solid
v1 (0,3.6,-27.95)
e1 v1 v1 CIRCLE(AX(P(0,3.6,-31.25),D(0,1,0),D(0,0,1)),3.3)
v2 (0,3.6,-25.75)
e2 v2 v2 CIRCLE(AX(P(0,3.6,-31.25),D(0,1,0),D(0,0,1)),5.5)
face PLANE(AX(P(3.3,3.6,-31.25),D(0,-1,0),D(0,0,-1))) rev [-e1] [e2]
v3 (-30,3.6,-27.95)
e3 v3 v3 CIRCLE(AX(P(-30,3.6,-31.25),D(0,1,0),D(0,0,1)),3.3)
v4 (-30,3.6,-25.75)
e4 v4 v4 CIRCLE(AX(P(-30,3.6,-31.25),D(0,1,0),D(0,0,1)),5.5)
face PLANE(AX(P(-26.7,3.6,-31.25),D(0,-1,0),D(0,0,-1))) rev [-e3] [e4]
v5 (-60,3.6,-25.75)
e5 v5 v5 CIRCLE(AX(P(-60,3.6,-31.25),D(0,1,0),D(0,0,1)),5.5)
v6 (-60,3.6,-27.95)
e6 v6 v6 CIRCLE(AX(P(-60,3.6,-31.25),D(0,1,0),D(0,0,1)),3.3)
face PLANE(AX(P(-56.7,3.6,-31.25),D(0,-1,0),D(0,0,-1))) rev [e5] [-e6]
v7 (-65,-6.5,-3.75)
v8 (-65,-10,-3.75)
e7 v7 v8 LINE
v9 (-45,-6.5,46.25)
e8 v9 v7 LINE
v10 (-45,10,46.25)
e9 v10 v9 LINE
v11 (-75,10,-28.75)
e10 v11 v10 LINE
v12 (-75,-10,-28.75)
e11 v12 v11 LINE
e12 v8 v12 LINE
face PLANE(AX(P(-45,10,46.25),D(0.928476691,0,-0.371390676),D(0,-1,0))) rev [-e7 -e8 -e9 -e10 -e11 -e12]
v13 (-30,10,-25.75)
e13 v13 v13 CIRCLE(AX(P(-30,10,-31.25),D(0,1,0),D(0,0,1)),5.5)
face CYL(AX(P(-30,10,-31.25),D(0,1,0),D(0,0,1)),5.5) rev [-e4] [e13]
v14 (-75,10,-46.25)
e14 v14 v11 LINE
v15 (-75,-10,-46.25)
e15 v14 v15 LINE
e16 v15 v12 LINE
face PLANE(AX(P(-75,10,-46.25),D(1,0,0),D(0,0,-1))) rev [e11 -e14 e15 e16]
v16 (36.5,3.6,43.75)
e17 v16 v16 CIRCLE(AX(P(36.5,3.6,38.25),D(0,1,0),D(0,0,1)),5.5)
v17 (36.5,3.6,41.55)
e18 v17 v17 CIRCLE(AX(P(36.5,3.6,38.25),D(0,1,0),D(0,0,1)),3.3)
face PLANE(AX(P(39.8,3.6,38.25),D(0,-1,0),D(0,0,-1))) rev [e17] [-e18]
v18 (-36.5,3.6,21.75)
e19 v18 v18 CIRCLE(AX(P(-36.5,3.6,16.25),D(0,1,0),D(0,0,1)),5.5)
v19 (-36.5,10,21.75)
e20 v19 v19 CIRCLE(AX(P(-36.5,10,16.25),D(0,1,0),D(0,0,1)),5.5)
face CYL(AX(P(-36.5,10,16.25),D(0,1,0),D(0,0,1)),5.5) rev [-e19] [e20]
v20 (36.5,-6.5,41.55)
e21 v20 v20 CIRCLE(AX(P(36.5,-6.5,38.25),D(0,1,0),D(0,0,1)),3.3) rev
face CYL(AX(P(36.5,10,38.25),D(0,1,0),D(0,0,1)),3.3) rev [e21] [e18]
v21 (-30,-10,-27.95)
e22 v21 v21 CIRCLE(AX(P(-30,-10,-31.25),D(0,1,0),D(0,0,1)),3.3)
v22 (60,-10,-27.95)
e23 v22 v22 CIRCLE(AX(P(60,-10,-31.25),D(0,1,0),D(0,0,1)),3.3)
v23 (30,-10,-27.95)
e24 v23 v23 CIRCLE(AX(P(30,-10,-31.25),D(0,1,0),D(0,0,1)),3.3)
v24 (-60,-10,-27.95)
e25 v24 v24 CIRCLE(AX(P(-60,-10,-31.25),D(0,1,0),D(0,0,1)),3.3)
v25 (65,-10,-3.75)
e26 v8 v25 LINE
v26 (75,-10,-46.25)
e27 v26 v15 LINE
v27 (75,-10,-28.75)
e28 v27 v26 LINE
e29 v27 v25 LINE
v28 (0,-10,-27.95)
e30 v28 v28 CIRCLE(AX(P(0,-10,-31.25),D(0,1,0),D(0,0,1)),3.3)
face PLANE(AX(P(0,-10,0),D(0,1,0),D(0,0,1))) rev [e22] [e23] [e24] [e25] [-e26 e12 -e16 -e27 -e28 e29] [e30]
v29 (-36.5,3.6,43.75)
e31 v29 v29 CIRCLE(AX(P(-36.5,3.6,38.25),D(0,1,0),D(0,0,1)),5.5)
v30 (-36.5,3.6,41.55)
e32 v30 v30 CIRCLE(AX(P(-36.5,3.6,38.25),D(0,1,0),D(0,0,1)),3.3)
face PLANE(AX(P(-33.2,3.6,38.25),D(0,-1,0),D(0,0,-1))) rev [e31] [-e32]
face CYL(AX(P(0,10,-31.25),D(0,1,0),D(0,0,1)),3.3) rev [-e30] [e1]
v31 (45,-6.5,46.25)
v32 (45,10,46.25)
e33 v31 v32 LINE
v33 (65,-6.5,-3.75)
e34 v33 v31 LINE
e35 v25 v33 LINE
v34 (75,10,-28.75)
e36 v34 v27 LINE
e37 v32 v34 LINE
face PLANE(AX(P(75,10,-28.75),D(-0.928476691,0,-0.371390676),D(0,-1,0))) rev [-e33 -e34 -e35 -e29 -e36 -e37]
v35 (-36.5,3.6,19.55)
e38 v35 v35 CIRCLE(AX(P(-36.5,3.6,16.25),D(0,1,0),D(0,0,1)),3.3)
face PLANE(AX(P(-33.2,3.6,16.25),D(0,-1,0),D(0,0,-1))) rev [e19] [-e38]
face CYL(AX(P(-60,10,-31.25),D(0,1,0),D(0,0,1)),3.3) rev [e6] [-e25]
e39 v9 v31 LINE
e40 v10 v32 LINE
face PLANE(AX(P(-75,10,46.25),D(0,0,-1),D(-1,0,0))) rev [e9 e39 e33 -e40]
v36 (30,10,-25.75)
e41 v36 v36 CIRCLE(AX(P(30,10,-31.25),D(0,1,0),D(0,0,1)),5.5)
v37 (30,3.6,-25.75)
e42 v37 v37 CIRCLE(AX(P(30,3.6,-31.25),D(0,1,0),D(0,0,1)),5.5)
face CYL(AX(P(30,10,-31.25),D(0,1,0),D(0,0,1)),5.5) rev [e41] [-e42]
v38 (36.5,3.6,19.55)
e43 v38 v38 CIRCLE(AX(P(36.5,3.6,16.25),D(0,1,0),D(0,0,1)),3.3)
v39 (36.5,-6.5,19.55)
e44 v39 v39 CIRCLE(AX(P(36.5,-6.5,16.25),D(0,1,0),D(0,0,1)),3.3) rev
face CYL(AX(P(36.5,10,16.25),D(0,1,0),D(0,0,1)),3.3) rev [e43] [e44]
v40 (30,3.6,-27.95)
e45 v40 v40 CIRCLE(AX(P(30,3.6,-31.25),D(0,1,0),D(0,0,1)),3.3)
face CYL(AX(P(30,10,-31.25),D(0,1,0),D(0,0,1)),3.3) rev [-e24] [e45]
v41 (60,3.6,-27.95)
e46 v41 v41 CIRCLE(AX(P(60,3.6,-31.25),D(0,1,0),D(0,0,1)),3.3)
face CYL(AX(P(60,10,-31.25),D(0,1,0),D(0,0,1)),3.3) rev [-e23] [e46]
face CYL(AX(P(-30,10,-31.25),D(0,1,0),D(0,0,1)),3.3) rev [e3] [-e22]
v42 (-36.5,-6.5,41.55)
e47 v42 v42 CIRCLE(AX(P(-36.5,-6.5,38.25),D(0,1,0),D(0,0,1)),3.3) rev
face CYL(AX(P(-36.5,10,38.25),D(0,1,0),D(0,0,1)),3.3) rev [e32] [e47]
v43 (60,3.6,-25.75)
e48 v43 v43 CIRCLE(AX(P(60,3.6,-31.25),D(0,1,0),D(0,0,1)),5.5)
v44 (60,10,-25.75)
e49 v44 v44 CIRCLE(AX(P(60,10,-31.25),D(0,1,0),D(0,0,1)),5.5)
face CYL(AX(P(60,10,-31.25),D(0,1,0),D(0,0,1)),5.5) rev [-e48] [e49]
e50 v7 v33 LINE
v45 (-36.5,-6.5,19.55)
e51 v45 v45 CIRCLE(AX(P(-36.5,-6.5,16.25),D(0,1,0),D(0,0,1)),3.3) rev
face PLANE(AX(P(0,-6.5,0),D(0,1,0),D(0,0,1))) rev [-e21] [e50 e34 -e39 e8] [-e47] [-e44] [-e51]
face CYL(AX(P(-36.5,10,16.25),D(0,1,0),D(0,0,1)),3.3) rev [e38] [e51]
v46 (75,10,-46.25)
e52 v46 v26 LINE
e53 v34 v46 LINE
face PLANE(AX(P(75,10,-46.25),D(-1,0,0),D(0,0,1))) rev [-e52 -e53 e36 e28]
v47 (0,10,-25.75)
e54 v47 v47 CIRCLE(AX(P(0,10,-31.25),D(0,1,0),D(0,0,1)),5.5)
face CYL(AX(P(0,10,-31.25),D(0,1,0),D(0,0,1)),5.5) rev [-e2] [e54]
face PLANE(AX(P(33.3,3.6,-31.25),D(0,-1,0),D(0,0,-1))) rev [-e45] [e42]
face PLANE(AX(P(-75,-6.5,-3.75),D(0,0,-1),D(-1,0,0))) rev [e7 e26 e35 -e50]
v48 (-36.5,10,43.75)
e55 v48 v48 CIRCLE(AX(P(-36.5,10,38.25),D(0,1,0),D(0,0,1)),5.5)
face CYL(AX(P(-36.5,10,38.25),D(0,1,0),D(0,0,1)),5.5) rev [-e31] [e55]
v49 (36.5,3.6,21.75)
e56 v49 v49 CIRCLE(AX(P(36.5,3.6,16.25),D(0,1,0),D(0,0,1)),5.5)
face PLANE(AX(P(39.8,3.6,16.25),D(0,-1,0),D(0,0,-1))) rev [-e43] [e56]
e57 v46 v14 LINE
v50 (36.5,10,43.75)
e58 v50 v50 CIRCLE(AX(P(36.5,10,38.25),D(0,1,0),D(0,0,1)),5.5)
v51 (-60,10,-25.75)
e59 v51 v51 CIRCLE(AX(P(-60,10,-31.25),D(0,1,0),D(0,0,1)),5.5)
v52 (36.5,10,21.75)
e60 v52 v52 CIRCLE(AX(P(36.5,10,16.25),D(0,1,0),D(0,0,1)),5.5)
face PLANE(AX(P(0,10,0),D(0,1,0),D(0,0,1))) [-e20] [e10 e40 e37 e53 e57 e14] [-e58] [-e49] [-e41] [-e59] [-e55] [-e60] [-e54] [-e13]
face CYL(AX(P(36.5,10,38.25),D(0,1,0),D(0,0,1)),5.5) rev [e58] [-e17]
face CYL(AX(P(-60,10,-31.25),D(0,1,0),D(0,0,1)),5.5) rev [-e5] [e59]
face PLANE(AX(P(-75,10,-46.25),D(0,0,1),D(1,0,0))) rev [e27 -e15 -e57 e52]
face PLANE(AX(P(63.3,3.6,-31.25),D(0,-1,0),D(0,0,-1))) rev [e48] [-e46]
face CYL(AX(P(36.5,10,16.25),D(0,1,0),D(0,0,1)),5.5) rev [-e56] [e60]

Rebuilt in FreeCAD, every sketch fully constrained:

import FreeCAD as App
import Part
import Sketcher
from FreeCAD import Vector
Q = App.Units.Quantity


def edges_at(feature, points):
    """Names of the edges that pass closest to the given points."""
    edges = feature.Shape.Edges
    near = lambda p: min(range(len(edges)), key=lambda i: edges[i].distToShape(Part.Vertex(*p))[0])
    return sorted({f"Edge{near(p) + 1}" for p in points})

doc = App.newDocument("Part")
params = doc.addObject("Spreadsheet::Sheet", "Params")
for row, (alias, value) in enumerate([
    ("sketch1_width", "150 mm"),
    ("sketch1_height", "92.5 mm"),
    ("pad1_length", "20 mm"),
    ("chamfer_size", "75 mm"),
    ("chamfer_size2", "30 mm"),
    ("chamfer2_size", "30 mm"),
    ("chamfer2_size2", "75 mm"),
    ("sketch2_diameter", "6.6 mm"),
    ("hole_diameter", "6.6 mm"),
    ("hole_cbore_diameter", "11 mm"),
    ("hole_cbore_depth", "6.4 mm"),
    ("sketch3_diameter", "6.6 mm"),
    ("hole2_diameter", "6.6 mm"),
    ("hole2_cbore_diameter", "11 mm"),
    ("hole2_cbore_depth", "6.4 mm"),
    ("sketch4_width", "150 mm"),
    ("sketch4_height", "60 mm"),
    ("pocket1_length", "3.5 mm"),
], start=1):
    params.set(f"A{row}", alias)
    params.set(f"B{row}", "=" + value)
    params.setAlias(f"B{row}", alias)

body = doc.addObject("PartDesign::Body", "Body")

sketch1 = body.newObject("Sketcher::SketchObject", "Sketch")
sketch1.AttachmentSupport = (doc.getObject("XZ_Plane"), [""])
sketch1.MapMode = "FlatFace"
sketch1.addGeometry(Part.LineSegment(Vector(-75, -46.25, 0), Vector(-75, 46.25, 0)), False)
sketch1.addGeometry(Part.LineSegment(Vector(-75, 46.25, 0), Vector(75, 46.25, 0)), False)
sketch1.addGeometry(Part.LineSegment(Vector(75, 46.25, 0), Vector(75, -46.25, 0)), False)
sketch1.addGeometry(Part.LineSegment(Vector(75, -46.25, 0), Vector(-75, -46.25, 0)), False)
sketch1.addConstraint(Sketcher.Constraint("Coincident", 0, 2, 1, 1))
sketch1.addConstraint(Sketcher.Constraint("Coincident", 1, 2, 2, 1))
sketch1.addConstraint(Sketcher.Constraint("Coincident", 2, 2, 3, 1))
sketch1.addConstraint(Sketcher.Constraint("Coincident", 3, 2, 0, 1))
sketch1.addConstraint(Sketcher.Constraint("Vertical", 0))
sketch1.addConstraint(Sketcher.Constraint("Horizontal", 1))
sketch1.addConstraint(Sketcher.Constraint("Vertical", 2))
sketch1.addConstraint(Sketcher.Constraint("Horizontal", 3))
sketch1.addConstraint(Sketcher.Constraint("Symmetric", 0, 2, 2, 2, -1, 1))
sketch1.addConstraint(Sketcher.Constraint("DistanceX", 1, 1, 1, 2, Q("150 mm")))
sketch1.addConstraint(Sketcher.Constraint("DistanceY", 0, 1, 0, 2, Q("92.5 mm")))
sketch1.setExpression("Constraints[9]", "Params.sketch1_width")
sketch1.setExpression("Constraints[10]", "Params.sketch1_height")
pad1 = body.newObject("PartDesign::Pad", "Pad")
pad1.Profile = sketch1
pad1.setExpression("Length", "Params.pad1_length")
pad1.Midplane = True
doc.recompute()

chamfer = body.newObject("PartDesign::Chamfer", "Chamfer")
chamfer.Base = (pad1, edges_at(pad1, [(-75, 0, 46.25)]))
chamfer.ChamferType = "Two distances"
chamfer.setExpression("Size", "Params.chamfer_size")
chamfer.setExpression("Size2", "Params.chamfer_size2")
doc.recompute()

chamfer2 = body.newObject("PartDesign::Chamfer", "Chamfer001")
chamfer2.Base = (chamfer, edges_at(chamfer, [(75, 0, 46.25)]))
chamfer2.ChamferType = "Two distances"
chamfer2.setExpression("Size", "Params.chamfer2_size")
chamfer2.setExpression("Size2", "Params.chamfer2_size2")

sketch2 = body.newObject("Sketcher::SketchObject", "Sketch001")
sketch2.AttachmentSupport = (doc.getObject("XZ_Plane"), [""])
sketch2.MapMode = "FlatFace"
sketch2.AttachmentOffset = App.Placement(Vector(0, 0, -10), App.Rotation())
sketch2.addGeometry(Part.Circle(Vector(-60, -31.25, 0), Vector(0, 0, 1), 3.3), False)
sketch2.addGeometry(Part.Circle(Vector(-30, -31.25, 0), Vector(0, 0, 1), 3.3), False)
sketch2.addGeometry(Part.Circle(Vector(0, -31.25, 0), Vector(0, 0, 1), 3.3), False)
sketch2.addGeometry(Part.Circle(Vector(30, -31.25, 0), Vector(0, 0, 1), 3.3), False)
sketch2.addGeometry(Part.Circle(Vector(60, -31.25, 0), Vector(0, 0, 1), 3.3), False)
sketch2.addConstraint(Sketcher.Constraint("Equal", 0, 1))
sketch2.addConstraint(Sketcher.Constraint("Equal", 1, 2))
sketch2.addConstraint(Sketcher.Constraint("Equal", 2, 3))
sketch2.addConstraint(Sketcher.Constraint("Equal", 3, 4))
sketch2.addConstraint(Sketcher.Constraint("Symmetric", 1, 3, 3, 3, -2))
sketch2.addConstraint(Sketcher.Constraint("Symmetric", 0, 3, 4, 3, -2))
sketch2.addConstraint(Sketcher.Constraint("PointOnObject", 2, 3, -2))
sketch2.addConstraint(Sketcher.Constraint("Horizontal", 0, 3, 1, 3))
sketch2.addConstraint(Sketcher.Constraint("Horizontal", 1, 3, 2, 3))
sketch2.addConstraint(Sketcher.Constraint("Diameter", 0, Q("6.6 mm")))
sketch2.addConstraint(Sketcher.Constraint("DistanceX", 0, 3, -1, 1, Q("60 mm")))
sketch2.addConstraint(Sketcher.Constraint("DistanceX", 1, 3, -1, 1, Q("30 mm")))
sketch2.addConstraint(Sketcher.Constraint("DistanceY", 0, 3, -1, 1, Q("31.25 mm")))
sketch2.setExpression("Constraints[9]", "Params.sketch2_diameter")
doc.recompute()
hole = body.newObject("PartDesign::Hole", "Hole")
hole.Profile = sketch2
hole.ThreadType = "None"
hole.setExpression("Diameter", "Params.hole_diameter")
hole.DepthType = "ThroughAll"
hole.HoleCutType = "Counterbore"
hole.setExpression("HoleCutDiameter", "Params.hole_cbore_diameter")
hole.setExpression("HoleCutDepth", "Params.hole_cbore_depth")
hole.Reversed = True

sketch3 = body.newObject("Sketcher::SketchObject", "Sketch002")
sketch3.AttachmentSupport = (doc.getObject("XZ_Plane"), [""])
sketch3.MapMode = "FlatFace"
sketch3.AttachmentOffset = App.Placement(Vector(0, 0, -10), App.Rotation())
sketch3.addGeometry(Part.Circle(Vector(-36.5, 38.25, 0), Vector(0, 0, 1), 3.3), False)
sketch3.addGeometry(Part.Circle(Vector(-36.5, 16.25, 0), Vector(0, 0, 1), 3.3), False)
sketch3.addGeometry(Part.Circle(Vector(36.5, 16.25, 0), Vector(0, 0, 1), 3.3), False)
sketch3.addGeometry(Part.Circle(Vector(36.5, 38.25, 0), Vector(0, 0, 1), 3.3), False)
sketch3.addConstraint(Sketcher.Constraint("Equal", 0, 1))
sketch3.addConstraint(Sketcher.Constraint("Equal", 1, 2))
sketch3.addConstraint(Sketcher.Constraint("Equal", 2, 3))
sketch3.addConstraint(Sketcher.Constraint("Symmetric", 1, 3, 2, 3, -2))
sketch3.addConstraint(Sketcher.Constraint("Symmetric", 0, 3, 3, 3, -2))
sketch3.addConstraint(Sketcher.Constraint("Vertical", 0, 3, 1, 3))
sketch3.addConstraint(Sketcher.Constraint("Diameter", 0, Q("6.6 mm")))
sketch3.addConstraint(Sketcher.Constraint("DistanceY", 1, 3, 0, 3, Q("22 mm")))
sketch3.addConstraint(Sketcher.Constraint("DistanceX", 1, 3, 2, 3, Q("73 mm")))
sketch3.addConstraint(Sketcher.Constraint("DistanceY", -1, 1, 0, 3, Q("38.25 mm")))
sketch3.setExpression("Constraints[6]", "Params.sketch3_diameter")
doc.recompute()
hole2 = body.newObject("PartDesign::Hole", "Hole001")
hole2.Profile = sketch3
hole2.ThreadType = "None"
hole2.setExpression("Diameter", "Params.hole2_diameter")
hole2.DepthType = "ThroughAll"
hole2.HoleCutType = "Counterbore"
hole2.setExpression("HoleCutDiameter", "Params.hole2_cbore_diameter")
hole2.setExpression("HoleCutDepth", "Params.hole2_cbore_depth")
hole2.Reversed = True

sketch4 = body.newObject("Sketcher::SketchObject", "Sketch003")
sketch4.AttachmentSupport = (doc.getObject("XZ_Plane"), [""])
sketch4.MapMode = "FlatFace"
sketch4.AttachmentOffset = App.Placement(Vector(0, 0, 10), App.Rotation())
sketch4.addGeometry(Part.LineSegment(Vector(-75, 56.25, 0), Vector(-75, -3.75, 0)), False)
sketch4.addGeometry(Part.LineSegment(Vector(-75, -3.75, 0), Vector(75, -3.75, 0)), False)
sketch4.addGeometry(Part.LineSegment(Vector(75, -3.75, 0), Vector(75, 56.25, 0)), False)
sketch4.addGeometry(Part.LineSegment(Vector(75, 56.25, 0), Vector(-75, 56.25, 0)), False)
sketch4.addConstraint(Sketcher.Constraint("Coincident", 0, 2, 1, 1))
sketch4.addConstraint(Sketcher.Constraint("Coincident", 1, 2, 2, 1))
sketch4.addConstraint(Sketcher.Constraint("Coincident", 2, 2, 3, 1))
sketch4.addConstraint(Sketcher.Constraint("Coincident", 3, 2, 0, 1))
sketch4.addConstraint(Sketcher.Constraint("Vertical", 0))
sketch4.addConstraint(Sketcher.Constraint("Horizontal", 1))
sketch4.addConstraint(Sketcher.Constraint("Vertical", 2))
sketch4.addConstraint(Sketcher.Constraint("Horizontal", 3))
sketch4.addConstraint(Sketcher.Constraint("DistanceX", 1, 1, 1, 2, Q("150 mm")))
sketch4.addConstraint(Sketcher.Constraint("DistanceY", 0, 2, 0, 1, Q("60 mm")))
sketch4.addConstraint(Sketcher.Constraint("DistanceX", 0, 2, -1, 1, Q("75 mm")))
sketch4.addConstraint(Sketcher.Constraint("DistanceY", 0, 2, -1, 1, Q("3.75 mm")))
sketch4.setExpression("Constraints[8]", "Params.sketch4_width")
sketch4.setExpression("Constraints[9]", "Params.sketch4_height")
pocket1 = body.newObject("PartDesign::Pocket", "Pocket")
pocket1.Profile = sketch4
pocket1.setExpression("Length", "Params.pocket1_length")

doc.recompute()
